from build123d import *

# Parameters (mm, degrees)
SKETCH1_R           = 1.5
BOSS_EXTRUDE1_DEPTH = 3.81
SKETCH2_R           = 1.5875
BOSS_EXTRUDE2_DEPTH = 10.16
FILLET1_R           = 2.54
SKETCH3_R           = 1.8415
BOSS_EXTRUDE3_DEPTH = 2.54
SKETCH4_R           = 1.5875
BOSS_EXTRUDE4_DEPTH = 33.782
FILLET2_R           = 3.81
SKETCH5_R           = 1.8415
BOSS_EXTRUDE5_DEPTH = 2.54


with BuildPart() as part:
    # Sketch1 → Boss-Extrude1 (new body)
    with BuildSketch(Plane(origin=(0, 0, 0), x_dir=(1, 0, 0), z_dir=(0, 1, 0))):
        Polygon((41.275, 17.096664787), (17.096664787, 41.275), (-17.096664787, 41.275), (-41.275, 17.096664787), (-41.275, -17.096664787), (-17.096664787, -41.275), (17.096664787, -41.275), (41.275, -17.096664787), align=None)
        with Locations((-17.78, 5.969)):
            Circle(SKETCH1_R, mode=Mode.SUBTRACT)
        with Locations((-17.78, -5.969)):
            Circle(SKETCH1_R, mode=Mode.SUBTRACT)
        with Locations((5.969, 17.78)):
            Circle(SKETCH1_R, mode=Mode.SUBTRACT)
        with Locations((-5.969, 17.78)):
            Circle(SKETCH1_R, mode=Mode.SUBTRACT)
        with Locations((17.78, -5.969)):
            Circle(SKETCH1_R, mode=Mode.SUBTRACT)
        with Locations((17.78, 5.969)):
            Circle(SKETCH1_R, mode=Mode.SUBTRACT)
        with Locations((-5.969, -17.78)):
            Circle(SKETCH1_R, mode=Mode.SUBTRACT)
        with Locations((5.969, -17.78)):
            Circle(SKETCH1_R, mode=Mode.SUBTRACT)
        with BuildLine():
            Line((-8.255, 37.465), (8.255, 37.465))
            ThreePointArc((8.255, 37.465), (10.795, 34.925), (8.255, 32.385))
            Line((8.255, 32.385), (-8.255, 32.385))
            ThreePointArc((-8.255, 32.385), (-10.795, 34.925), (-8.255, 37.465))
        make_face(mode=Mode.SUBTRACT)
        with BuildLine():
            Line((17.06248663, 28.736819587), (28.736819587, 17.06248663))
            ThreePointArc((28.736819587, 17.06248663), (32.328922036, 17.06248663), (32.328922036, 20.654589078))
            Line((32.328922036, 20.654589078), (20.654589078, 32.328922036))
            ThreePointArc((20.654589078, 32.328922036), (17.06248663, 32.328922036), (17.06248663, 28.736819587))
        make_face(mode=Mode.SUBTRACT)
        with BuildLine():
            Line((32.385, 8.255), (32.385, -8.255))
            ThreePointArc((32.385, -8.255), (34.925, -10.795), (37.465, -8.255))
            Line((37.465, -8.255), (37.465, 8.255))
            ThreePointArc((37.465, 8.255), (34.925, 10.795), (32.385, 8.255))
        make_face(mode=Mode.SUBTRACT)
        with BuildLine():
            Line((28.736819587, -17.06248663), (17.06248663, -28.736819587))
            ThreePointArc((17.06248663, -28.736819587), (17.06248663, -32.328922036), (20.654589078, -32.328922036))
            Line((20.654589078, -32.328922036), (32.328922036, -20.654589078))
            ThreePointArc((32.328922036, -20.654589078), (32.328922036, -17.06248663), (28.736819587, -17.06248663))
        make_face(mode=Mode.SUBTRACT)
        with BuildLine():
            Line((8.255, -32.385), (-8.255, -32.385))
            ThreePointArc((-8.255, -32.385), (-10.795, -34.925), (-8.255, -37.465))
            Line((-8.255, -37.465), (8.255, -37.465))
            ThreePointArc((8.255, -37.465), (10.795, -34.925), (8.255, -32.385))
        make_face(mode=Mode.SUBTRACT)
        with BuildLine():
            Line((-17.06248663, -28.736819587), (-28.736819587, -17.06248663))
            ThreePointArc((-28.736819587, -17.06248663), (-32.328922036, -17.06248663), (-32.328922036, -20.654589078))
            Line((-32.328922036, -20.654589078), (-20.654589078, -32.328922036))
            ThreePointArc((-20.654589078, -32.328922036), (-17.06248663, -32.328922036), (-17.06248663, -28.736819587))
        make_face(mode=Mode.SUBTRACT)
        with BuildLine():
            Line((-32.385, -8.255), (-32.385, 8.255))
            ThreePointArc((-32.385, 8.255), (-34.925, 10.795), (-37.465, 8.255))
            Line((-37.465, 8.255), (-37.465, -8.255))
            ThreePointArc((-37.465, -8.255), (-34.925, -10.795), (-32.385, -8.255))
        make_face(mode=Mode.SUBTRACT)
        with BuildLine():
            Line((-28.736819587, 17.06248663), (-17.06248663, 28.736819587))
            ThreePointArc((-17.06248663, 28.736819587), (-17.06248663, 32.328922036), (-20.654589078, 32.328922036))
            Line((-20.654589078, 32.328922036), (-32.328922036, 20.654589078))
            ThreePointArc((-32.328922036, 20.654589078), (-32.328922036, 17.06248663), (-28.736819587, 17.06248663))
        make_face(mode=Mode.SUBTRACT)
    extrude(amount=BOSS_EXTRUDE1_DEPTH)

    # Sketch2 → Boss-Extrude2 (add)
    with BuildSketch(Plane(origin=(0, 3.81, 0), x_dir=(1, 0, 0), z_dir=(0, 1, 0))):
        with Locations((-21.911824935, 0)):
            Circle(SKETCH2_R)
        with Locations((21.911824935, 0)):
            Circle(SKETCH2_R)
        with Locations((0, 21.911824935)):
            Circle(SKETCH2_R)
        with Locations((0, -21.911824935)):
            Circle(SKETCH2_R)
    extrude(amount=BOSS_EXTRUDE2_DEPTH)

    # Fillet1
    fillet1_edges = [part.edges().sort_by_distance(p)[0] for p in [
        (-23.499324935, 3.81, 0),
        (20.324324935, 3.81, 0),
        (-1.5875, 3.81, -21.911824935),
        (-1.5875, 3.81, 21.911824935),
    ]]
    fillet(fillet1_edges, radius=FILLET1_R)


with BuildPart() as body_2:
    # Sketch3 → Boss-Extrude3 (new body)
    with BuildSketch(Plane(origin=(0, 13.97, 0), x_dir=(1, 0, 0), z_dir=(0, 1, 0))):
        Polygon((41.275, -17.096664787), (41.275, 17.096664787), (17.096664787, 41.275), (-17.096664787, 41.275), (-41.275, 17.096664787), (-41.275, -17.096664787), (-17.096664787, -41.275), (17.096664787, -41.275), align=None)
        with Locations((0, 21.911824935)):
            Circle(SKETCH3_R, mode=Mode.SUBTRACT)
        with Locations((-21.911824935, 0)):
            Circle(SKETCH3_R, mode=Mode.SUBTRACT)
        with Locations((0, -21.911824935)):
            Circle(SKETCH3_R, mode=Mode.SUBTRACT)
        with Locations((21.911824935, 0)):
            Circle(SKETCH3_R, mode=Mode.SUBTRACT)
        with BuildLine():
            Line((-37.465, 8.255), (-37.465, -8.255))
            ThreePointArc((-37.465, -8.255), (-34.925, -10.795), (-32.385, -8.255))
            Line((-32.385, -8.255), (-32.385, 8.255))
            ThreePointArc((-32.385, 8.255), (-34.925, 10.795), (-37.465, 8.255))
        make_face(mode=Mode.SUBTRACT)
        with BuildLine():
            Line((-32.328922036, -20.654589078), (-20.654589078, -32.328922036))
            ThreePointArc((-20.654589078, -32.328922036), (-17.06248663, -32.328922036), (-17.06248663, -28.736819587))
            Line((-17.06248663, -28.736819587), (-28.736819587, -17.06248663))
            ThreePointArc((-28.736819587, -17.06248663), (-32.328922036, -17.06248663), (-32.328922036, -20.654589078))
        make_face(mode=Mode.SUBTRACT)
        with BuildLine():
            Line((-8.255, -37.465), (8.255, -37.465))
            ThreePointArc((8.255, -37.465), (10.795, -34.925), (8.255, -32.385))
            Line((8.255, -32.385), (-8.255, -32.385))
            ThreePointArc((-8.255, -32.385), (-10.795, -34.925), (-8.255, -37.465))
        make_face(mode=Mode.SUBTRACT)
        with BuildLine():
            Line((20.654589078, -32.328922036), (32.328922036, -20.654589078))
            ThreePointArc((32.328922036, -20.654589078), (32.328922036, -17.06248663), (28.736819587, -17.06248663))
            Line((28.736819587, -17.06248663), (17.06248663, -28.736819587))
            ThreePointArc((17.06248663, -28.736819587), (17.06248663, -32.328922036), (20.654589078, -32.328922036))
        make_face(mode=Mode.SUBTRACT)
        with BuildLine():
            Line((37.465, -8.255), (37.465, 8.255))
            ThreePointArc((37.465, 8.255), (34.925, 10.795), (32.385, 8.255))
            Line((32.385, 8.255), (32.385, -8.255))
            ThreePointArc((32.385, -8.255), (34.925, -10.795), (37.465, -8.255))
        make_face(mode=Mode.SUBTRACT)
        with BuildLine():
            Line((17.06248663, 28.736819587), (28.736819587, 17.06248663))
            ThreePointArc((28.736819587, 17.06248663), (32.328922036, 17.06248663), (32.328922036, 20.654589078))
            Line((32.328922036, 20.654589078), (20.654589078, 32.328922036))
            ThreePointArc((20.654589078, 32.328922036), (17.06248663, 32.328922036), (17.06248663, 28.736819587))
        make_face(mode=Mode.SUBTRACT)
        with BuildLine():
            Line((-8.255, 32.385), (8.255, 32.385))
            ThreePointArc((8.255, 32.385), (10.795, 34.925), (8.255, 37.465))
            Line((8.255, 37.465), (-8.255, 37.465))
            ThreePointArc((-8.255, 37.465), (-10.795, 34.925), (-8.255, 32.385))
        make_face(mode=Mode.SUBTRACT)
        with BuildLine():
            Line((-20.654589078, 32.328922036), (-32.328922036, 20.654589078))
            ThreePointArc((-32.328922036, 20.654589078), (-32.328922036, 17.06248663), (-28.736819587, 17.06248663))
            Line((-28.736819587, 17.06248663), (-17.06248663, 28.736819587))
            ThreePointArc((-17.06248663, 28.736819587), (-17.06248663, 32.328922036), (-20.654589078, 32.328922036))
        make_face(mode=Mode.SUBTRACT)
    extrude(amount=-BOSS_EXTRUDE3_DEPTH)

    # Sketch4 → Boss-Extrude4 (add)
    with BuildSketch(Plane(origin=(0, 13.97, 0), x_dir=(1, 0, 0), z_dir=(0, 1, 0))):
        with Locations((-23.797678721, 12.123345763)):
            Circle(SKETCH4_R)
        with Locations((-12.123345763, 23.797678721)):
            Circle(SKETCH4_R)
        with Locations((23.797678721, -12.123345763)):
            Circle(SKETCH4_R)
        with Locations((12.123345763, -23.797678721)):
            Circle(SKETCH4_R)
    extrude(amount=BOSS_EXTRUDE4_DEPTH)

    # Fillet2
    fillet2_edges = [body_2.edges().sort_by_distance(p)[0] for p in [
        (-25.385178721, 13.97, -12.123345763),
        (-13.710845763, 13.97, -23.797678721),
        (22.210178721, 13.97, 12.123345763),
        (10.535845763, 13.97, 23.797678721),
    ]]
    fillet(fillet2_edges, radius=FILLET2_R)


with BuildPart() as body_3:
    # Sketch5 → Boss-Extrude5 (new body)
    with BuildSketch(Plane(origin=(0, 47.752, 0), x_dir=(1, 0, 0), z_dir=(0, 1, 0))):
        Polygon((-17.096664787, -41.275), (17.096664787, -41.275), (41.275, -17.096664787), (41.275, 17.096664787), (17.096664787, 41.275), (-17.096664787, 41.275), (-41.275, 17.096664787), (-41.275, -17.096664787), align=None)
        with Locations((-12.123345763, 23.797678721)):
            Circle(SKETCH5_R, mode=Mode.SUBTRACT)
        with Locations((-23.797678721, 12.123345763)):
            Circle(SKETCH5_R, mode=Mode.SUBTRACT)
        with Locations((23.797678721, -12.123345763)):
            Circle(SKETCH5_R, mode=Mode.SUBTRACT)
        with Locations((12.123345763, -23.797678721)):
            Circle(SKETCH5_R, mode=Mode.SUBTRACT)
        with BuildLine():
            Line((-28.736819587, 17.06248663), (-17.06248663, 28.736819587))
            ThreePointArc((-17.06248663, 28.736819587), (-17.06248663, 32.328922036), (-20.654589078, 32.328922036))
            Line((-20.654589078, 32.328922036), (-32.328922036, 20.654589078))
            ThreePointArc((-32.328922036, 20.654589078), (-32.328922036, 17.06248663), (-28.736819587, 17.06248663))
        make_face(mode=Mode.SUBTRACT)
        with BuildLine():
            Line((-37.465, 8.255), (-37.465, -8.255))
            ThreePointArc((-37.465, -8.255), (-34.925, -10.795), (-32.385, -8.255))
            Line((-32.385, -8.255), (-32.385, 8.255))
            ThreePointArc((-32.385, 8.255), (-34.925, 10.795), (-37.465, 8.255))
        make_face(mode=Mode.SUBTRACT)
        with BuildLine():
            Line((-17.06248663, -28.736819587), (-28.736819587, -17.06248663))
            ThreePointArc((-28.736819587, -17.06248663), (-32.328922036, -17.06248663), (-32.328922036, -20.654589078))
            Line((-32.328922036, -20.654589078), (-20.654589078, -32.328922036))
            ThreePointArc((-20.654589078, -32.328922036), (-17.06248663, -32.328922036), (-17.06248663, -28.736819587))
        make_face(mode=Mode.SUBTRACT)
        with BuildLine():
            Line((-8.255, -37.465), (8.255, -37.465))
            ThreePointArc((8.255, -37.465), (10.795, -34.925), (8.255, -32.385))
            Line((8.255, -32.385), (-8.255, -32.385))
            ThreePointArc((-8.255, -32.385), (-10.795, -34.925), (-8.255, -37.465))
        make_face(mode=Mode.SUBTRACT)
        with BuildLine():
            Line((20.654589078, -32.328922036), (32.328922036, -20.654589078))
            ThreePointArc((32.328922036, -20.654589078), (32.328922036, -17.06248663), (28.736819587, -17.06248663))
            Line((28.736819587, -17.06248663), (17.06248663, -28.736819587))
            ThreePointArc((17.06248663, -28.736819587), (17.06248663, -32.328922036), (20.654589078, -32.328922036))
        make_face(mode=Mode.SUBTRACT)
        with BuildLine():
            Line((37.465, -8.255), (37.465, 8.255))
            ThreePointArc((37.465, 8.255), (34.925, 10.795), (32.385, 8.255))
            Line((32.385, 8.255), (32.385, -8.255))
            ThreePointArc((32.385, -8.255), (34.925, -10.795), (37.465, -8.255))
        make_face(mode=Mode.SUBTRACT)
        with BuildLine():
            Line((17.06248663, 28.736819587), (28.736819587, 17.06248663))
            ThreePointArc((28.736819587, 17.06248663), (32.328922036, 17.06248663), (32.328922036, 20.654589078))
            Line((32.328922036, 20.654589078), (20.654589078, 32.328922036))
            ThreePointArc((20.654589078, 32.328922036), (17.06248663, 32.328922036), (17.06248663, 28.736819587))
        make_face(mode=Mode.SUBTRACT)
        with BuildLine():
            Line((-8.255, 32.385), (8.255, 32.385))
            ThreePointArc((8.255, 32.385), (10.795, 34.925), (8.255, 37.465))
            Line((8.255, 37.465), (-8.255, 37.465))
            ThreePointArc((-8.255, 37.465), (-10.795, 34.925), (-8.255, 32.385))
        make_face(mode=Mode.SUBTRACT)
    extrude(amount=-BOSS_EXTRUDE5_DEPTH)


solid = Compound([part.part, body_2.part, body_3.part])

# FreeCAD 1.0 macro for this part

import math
import FreeCAD as App
import Part
import Sketcher
Q = App.Units.Quantity


def edges_at(feature, points):
    """Names of the edges that pass closest to the given points."""
    edges = feature.Shape.Edges
    near = lambda p: min(range(len(edges)), key=lambda i: edges[i].distToShape(Part.Vertex(*p))[0])
    return sorted({f"Edge{near(p) + 1}" for p in points})

doc = App.newDocument("Part")
body = doc.addObject("PartDesign::Body", "Body")

# Sketch on XZ plane
sketch1 = body.newObject("Sketcher::SketchObject", "Sketch")
sketch1.AttachmentSupport = (doc.getObject("XZ_Plane"), [""])
sketch1.MapMode = "FlatFace"
sketch1.addGeometry([
    Part.LineSegment(App.Vector(41.275, -17.096665, 0), App.Vector(17.096665, -41.275, 0)),  # 0
    Part.LineSegment(App.Vector(17.096665, -41.275, 0), App.Vector(-17.096665, -41.275, 0)),  # 1
    Part.LineSegment(App.Vector(-17.096665, -41.275, 0), App.Vector(-41.275, -17.096665, 0)),  # 2
    Part.LineSegment(App.Vector(-41.275, -17.096665, 0), App.Vector(-41.275, 17.096665, 0)),  # 3
    Part.LineSegment(App.Vector(-41.275, 17.096665, 0), App.Vector(-17.096665, 41.275, 0)),  # 4
    Part.LineSegment(App.Vector(-17.096665, 41.275, 0), App.Vector(17.096665, 41.275, 0)),  # 5
    Part.LineSegment(App.Vector(17.096665, 41.275, 0), App.Vector(41.275, 17.096665, 0)),  # 6
    Part.LineSegment(App.Vector(41.275, 17.096665, 0), App.Vector(41.275, -17.096665, 0)),  # 7
    Part.LineSegment(App.Vector(-28.73682, 17.062487, 0), App.Vector(-17.062487, 28.73682, 0)),  # 8
    Part.ArcOfCircle(Part.Circle(App.Vector(-18.858538, 30.532871, 0), App.Vector(0, 0, 1), 2.54), math.radians(-45), math.radians(135)),  # 9
    Part.LineSegment(App.Vector(-20.654589, 32.328922, 0), App.Vector(-32.328922, 20.654589, 0)),  # 10
    Part.ArcOfCircle(Part.Circle(App.Vector(-30.532871, 18.858538, 0), App.Vector(0, 0, 1), 2.54), math.radians(135), math.radians(315)),  # 11
    Part.Circle(App.Vector(-5.969, 17.78, 0), App.Vector(0, 0, 1), 1.5),  # 12
    Part.Circle(App.Vector(-17.78, 5.969, 0), App.Vector(0, 0, 1), 1.5),  # 13
    Part.LineSegment(App.Vector(-8.255, 32.385, 0), App.Vector(8.255, 32.385, 0)),  # 14
    Part.ArcOfCircle(Part.Circle(App.Vector(8.255, 34.925, 0), App.Vector(0, 0, 1), 2.54), math.radians(-90), math.radians(90)),  # 15
    Part.LineSegment(App.Vector(8.255, 37.465, 0), App.Vector(-8.255, 37.465, 0)),  # 16
    Part.ArcOfCircle(Part.Circle(App.Vector(-8.255, 34.925, 0), App.Vector(0, 0, 1), 2.54), math.radians(90), math.radians(270)),  # 17
    Part.LineSegment(App.Vector(17.062487, 28.73682, 0), App.Vector(28.73682, 17.062487, 0)),  # 18
    Part.ArcOfCircle(Part.Circle(App.Vector(30.532871, 18.858538, 0), App.Vector(0, 0, 1), 2.54), math.radians(-135), math.radians(45)),  # 19
    Part.LineSegment(App.Vector(32.328922, 20.654589, 0), App.Vector(20.654589, 32.328922, 0)),  # 20
    Part.ArcOfCircle(Part.Circle(App.Vector(18.858538, 30.532871, 0), App.Vector(0, 0, 1), 2.54), math.radians(45), math.radians(225)),  # 21
    Part.Circle(App.Vector(5.969, 17.78, 0), App.Vector(0, 0, 1), 1.5),  # 22
    Part.Circle(App.Vector(17.78, 5.969, 0), App.Vector(0, 0, 1), 1.5),  # 23
    Part.LineSegment(App.Vector(-32.385, -8.255, 0), App.Vector(-32.385, 8.255, 0)),  # 24
    Part.ArcOfCircle(Part.Circle(App.Vector(-34.925, 8.255, 0), App.Vector(0, 0, 1), 2.54), math.radians(0), math.radians(180)),  # 25
    Part.LineSegment(App.Vector(-37.465, 8.255, 0), App.Vector(-37.465, -8.255, 0)),  # 26
    Part.ArcOfCircle(Part.Circle(App.Vector(-34.925, -8.255, 0), App.Vector(0, 0, 1), 2.54), math.radians(180), math.radians(360)),  # 27
    Part.Circle(App.Vector(-17.78, -5.969, 0), App.Vector(0, 0, 1), 1.5),  # 28
    Part.Circle(App.Vector(-5.969, -17.78, 0), App.Vector(0, 0, 1), 1.5),  # 29
    Part.LineSegment(App.Vector(-17.062487, -28.73682, 0), App.Vector(-28.73682, -17.062487, 0)),  # 30
    Part.ArcOfCircle(Part.Circle(App.Vector(-30.532871, -18.858538, 0), App.Vector(0, 0, 1), 2.54), math.radians(45), math.radians(225)),  # 31
    Part.LineSegment(App.Vector(-32.328922, -20.654589, 0), App.Vector(-20.654589, -32.328922, 0)),  # 32
    Part.ArcOfCircle(Part.Circle(App.Vector(-18.858538, -30.532871, 0), App.Vector(0, 0, 1), 2.54), math.radians(-135), math.radians(45)),  # 33
    Part.Circle(App.Vector(17.78, -5.969, 0), App.Vector(0, 0, 1), 1.5),  # 34
    Part.Circle(App.Vector(5.969, -17.78, 0), App.Vector(0, 0, 1), 1.5),  # 35
    Part.LineSegment(App.Vector(32.385, 8.255, 0), App.Vector(32.385, -8.255, 0)),  # 36
    Part.ArcOfCircle(Part.Circle(App.Vector(34.925, -8.255, 0), App.Vector(0, 0, 1), 2.54), math.radians(180), math.radians(360)),  # 37
    Part.LineSegment(App.Vector(37.465, -8.255, 0), App.Vector(37.465, 8.255, 0)),  # 38
    Part.ArcOfCircle(Part.Circle(App.Vector(34.925, 8.255, 0), App.Vector(0, 0, 1), 2.54), math.radians(0), math.radians(180)),  # 39
    Part.ArcOfCircle(Part.Circle(App.Vector(-8.255, -34.925, 0), App.Vector(0, 0, 1), 2.54), math.radians(90), math.radians(270)),  # 40
    Part.LineSegment(App.Vector(-8.255, -37.465, 0), App.Vector(8.255, -37.465, 0)),  # 41
    Part.ArcOfCircle(Part.Circle(App.Vector(8.255, -34.925, 0), App.Vector(0, 0, 1), 2.54), math.radians(-90), math.radians(90)),  # 42
    Part.LineSegment(App.Vector(8.255, -32.385, 0), App.Vector(-8.255, -32.385, 0)),  # 43
    Part.LineSegment(App.Vector(28.73682, -17.062487, 0), App.Vector(17.062487, -28.73682, 0)),  # 44
    Part.ArcOfCircle(Part.Circle(App.Vector(18.858538, -30.532871, 0), App.Vector(0, 0, 1), 2.54), math.radians(135), math.radians(315)),  # 45
    Part.LineSegment(App.Vector(20.654589, -32.328922, 0), App.Vector(32.328922, -20.654589, 0)),  # 46
    Part.ArcOfCircle(Part.Circle(App.Vector(30.532871, -18.858538, 0), App.Vector(0, 0, 1), 2.54), math.radians(-45), math.radians(135)),  # 47
], False)
sketch1.addConstraint([
    Sketcher.Constraint("Coincident", 0, 2, 1, 1),
    Sketcher.Constraint("Coincident", 1, 2, 2, 1),
    Sketcher.Constraint("Coincident", 2, 2, 3, 1),
    Sketcher.Constraint("Coincident", 3, 2, 4, 1),
    Sketcher.Constraint("Coincident", 4, 2, 5, 1),
    Sketcher.Constraint("Coincident", 5, 2, 6, 1),
    Sketcher.Constraint("Coincident", 6, 2, 7, 1),
    Sketcher.Constraint("Coincident", 7, 2, 0, 1),
    Sketcher.Constraint("Tangent", 8, 2, 9, 1),
    Sketcher.Constraint("Tangent", 9, 2, 10, 1),
    Sketcher.Constraint("Tangent", 10, 2, 11, 1),
    Sketcher.Constraint("Tangent", 11, 2, 8, 1),
    Sketcher.Constraint("Tangent", 14, 2, 15, 1),
    Sketcher.Constraint("Tangent", 15, 2, 16, 1),
    Sketcher.Constraint("Tangent", 16, 2, 17, 1),
    Sketcher.Constraint("Tangent", 17, 2, 14, 1),
    Sketcher.Constraint("Tangent", 18, 2, 19, 1),
    Sketcher.Constraint("Tangent", 19, 2, 20, 1),
    Sketcher.Constraint("Tangent", 20, 2, 21, 1),
    Sketcher.Constraint("Tangent", 21, 2, 18, 1),
    Sketcher.Constraint("Tangent", 24, 2, 25, 1),
    Sketcher.Constraint("Tangent", 25, 2, 26, 1),
    Sketcher.Constraint("Tangent", 26, 2, 27, 1),
    Sketcher.Constraint("Tangent", 27, 2, 24, 1),
    Sketcher.Constraint("Tangent", 30, 2, 31, 1),
    Sketcher.Constraint("Tangent", 31, 2, 32, 1),
    Sketcher.Constraint("Tangent", 32, 2, 33, 1),
    Sketcher.Constraint("Tangent", 33, 2, 30, 1),
    Sketcher.Constraint("Tangent", 36, 2, 37, 1),
    Sketcher.Constraint("Tangent", 37, 2, 38, 1),
    Sketcher.Constraint("Tangent", 38, 2, 39, 1),
    Sketcher.Constraint("Tangent", 39, 2, 36, 1),
    Sketcher.Constraint("Tangent", 40, 2, 41, 1),
    Sketcher.Constraint("Tangent", 41, 2, 42, 1),
    Sketcher.Constraint("Tangent", 42, 2, 43, 1),
    Sketcher.Constraint("Tangent", 43, 2, 40, 1),
    Sketcher.Constraint("Tangent", 44, 2, 45, 1),
    Sketcher.Constraint("Tangent", 45, 2, 46, 1),
    Sketcher.Constraint("Tangent", 46, 2, 47, 1),
    Sketcher.Constraint("Tangent", 47, 2, 44, 1),
    Sketcher.Constraint("Horizontal", 1),
    Sketcher.Constraint("Vertical", 3),
    Sketcher.Constraint("Horizontal", 5),
    Sketcher.Constraint("Vertical", 7),
    Sketcher.Constraint("Horizontal", 14),
    Sketcher.Constraint("Horizontal", 16),
    Sketcher.Constraint("Vertical", 24),
    Sketcher.Constraint("Vertical", 26),
    Sketcher.Constraint("Vertical", 36),
    Sketcher.Constraint("Vertical", 38),
    Sketcher.Constraint("Horizontal", 41),
    Sketcher.Constraint("Horizontal", 43),
    Sketcher.Constraint("Equal", 9, 11),
    Sketcher.Constraint("Equal", 12, 13),
    Sketcher.Constraint("Equal", 11, 15),
    Sketcher.Constraint("Equal", 17, 19),
    Sketcher.Constraint("Equal", 19, 21),
    Sketcher.Constraint("Equal", 13, 22),
    Sketcher.Constraint("Equal", 22, 23),
    Sketcher.Constraint("Equal", 21, 25),
    Sketcher.Constraint("Equal", 23, 28),
    Sketcher.Constraint("Equal", 28, 29),
    Sketcher.Constraint("Equal", 27, 31),
    Sketcher.Constraint("Equal", 31, 33),
    Sketcher.Constraint("Equal", 29, 34),
    Sketcher.Constraint("Equal", 34, 35),
    Sketcher.Constraint("Equal", 33, 37),
    Sketcher.Constraint("Equal", 39, 40),
    Sketcher.Constraint("Equal", 42, 45),
    Sketcher.Constraint("Equal", 45, 47),
    Sketcher.Constraint("Symmetric", 23, 3, 28, 3, -1, 1),
    Sketcher.Constraint("Symmetric", 22, 3, 29, 3, -1, 1),
    Sketcher.Constraint("Symmetric", 19, 3, 31, 3, -1, 1),
    Sketcher.Constraint("Symmetric", 21, 3, 33, 3, -1, 1),
    Sketcher.Constraint("Symmetric", 13, 3, 34, 3, -1, 1),
    Sketcher.Constraint("Symmetric", 12, 3, 35, 3, -1, 1),
    Sketcher.Constraint("Symmetric", 25, 3, 37, 3, -1, 1),
    Sketcher.Constraint("Symmetric", 15, 3, 40, 3, -1, 1),
    Sketcher.Constraint("Symmetric", 9, 3, 45, 3, -1, 1),
    Sketcher.Constraint("Symmetric", 11, 3, 47, 3, -1, 1),
    Sketcher.Constraint("Symmetric", 0, 2, 4, 2, -1, 1),
    Sketcher.Constraint("Symmetric", 2, 2, 6, 2, -1, 1),
    Sketcher.Constraint("Symmetric", 11, 3, 19, 3, -2),
    Sketcher.Constraint("Symmetric", 9, 3, 21, 3, -2),
    Sketcher.Constraint("Symmetric", 12, 3, 22, 3, -2),
    Sketcher.Constraint("Symmetric", 13, 3, 23, 3, -2),
    Sketcher.Constraint("Perpendicular", 0, 2),
    Sketcher.Constraint("Perpendicular", 2, 4),
    Sketcher.Constraint("Perpendicular", 4, 6),
    Sketcher.Constraint("Perpendicular", 6, 8),
    Sketcher.Constraint("Perpendicular", 10, 18),
    Sketcher.Constraint("Horizontal", 27, 3, 37, 3),
    Sketcher.Constraint("Horizontal", 25, 3, 39, 3),
    Sketcher.Constraint("Horizontal", 3, 2, 6, 2),
    Sketcher.Constraint("Vertical", 17, 3, 40, 3),
    Sketcher.Constraint("Vertical", 15, 3, 42, 3),
    Sketcher.Constraint("Equal", 5, 3),
    Sketcher.Constraint("Equal", 43, 24),
    Sketcher.Constraint("Radius", 9, Q("0.1 in")),
    Sketcher.Constraint("DistanceX", 14, 1, 14, 2, Q("0.65 in")),
    Sketcher.Constraint("DistanceY", -1, 1, 12, 3, Q("0.7 in")),
    Sketcher.Constraint("DistanceX", 13, 3, -1, 1, Q("0.7 in")),
    Sketcher.Constraint("Distance", 8, Q("0.65 in")),
    Sketcher.Constraint("Diameter", 12, Q("3 mm")),
    Sketcher.Constraint("DistanceX", 12, 3, -1, 1, Q("0.235 in")),
    Sketcher.Constraint("DistanceY", -1, 1, 13, 3, Q("0.235 in")),
    Sketcher.Constraint("DistanceY", -1, 1, 15, 3, Q("1.375 in")),
    Sketcher.Constraint("DistanceX", 25, 3, -1, 1, Q("1.375 in")),
    Sketcher.Constraint("DistanceY", 0, 2, -1, 1, Q("1.625 in")),
    Sketcher.Constraint("DistanceX", 1, 2, 1, 1, Q("34.19333 mm")),
    Sketcher.Constraint("DistanceY", -1, 1, 9, 3, Q("30.532871 mm")),
    Sketcher.Constraint("DistanceX", 11, 3, -1, 1, Q("30.532871 mm")),
])
pad1 = body.newObject("PartDesign::Pad", "Pad")
pad1.Profile = sketch1
pad1.Length = Q("0.15 in")
pad1.Reversed = True

# Sketch on XZ plane
sketch2 = body.newObject("Sketcher::SketchObject", "Sketch001")
sketch2.AttachmentSupport = (doc.getObject("XZ_Plane"), [""])
sketch2.MapMode = "FlatFace"
sketch2.AttachmentOffset = App.Placement(App.Vector(0, 0, -0.15 * 25.4), App.Rotation())
sketch2.addGeometry([
    Part.Circle(App.Vector(-21.911825, 0, 0), App.Vector(0, 0, 1), 1.5875),
    Part.Circle(App.Vector(21.911825, 0, 0), App.Vector(0, 0, 1), 1.5875),
    Part.Circle(App.Vector(0, -21.911825, 0), App.Vector(0, 0, 1), 1.5875),
    Part.Circle(App.Vector(0, 21.911825, 0), App.Vector(0, 0, 1), 1.5875),
], False)
sketch2.addConstraint([
    Sketcher.Constraint("Equal", 0, 1),
    Sketcher.Constraint("Equal", 1, 2),
    Sketcher.Constraint("Equal", 2, 3),
    Sketcher.Constraint("Symmetric", 0, 3, 1, 3, -1, 1),
    Sketcher.Constraint("Symmetric", 2, 3, 3, 3, -1, 1),
    Sketcher.Constraint("PointOnObject", 0, 3, -1),
    Sketcher.Constraint("PointOnObject", 2, 3, -2),
    Sketcher.Constraint("Diameter", 0, Q("0.125 in")),
    Sketcher.Constraint("DistanceX", 0, 3, 1, 3, Q("43.82365 mm")),
    Sketcher.Constraint("DistanceY", 2, 3, 3, 3, Q("43.82365 mm")),
])
pad2 = body.newObject("PartDesign::Pad", "Pad001")
pad2.Profile = sketch2
pad2.Length = Q("0.4 in")
pad2.Reversed = True
doc.recompute()

fillet = body.newObject("PartDesign::Fillet", "Fillet")
fillet.Base = (pad2, edges_at(pad2, [
    (-23.499, 3.81, 0),
    (20.324, 3.81, 0),
    (-1.587, 3.81, -21.912),
    (-1.587, 3.81, 21.912),
]))
fillet.Radius = Q("0.1 in")
body2 = doc.addObject("PartDesign::Body", "Body001")

# Sketch on XZ plane
sketch3 = body2.newObject("Sketcher::SketchObject", "Sketch002")
sketch3.AttachmentSupport = (doc.getObject("XZ_Plane001"), [""])
sketch3.MapMode = "FlatFace"
sketch3.AttachmentOffset = App.Placement(App.Vector(0, 0, -0.55 * 25.4), App.Rotation())
sketch3.addGeometry([
    Part.LineSegment(App.Vector(41.275, 17.096665, 0), App.Vector(41.275, -17.096665, 0)),  # 0
    Part.LineSegment(App.Vector(41.275, -17.096665, 0), App.Vector(17.096665, -41.275, 0)),  # 1
    Part.LineSegment(App.Vector(17.096665, -41.275, 0), App.Vector(-17.096665, -41.275, 0)),  # 2
    Part.LineSegment(App.Vector(-17.096665, -41.275, 0), App.Vector(-41.275, -17.096665, 0)),  # 3
    Part.LineSegment(App.Vector(-41.275, -17.096665, 0), App.Vector(-41.275, 17.096665, 0)),  # 4
    Part.LineSegment(App.Vector(-41.275, 17.096665, 0), App.Vector(-17.096665, 41.275, 0)),  # 5
    Part.LineSegment(App.Vector(-17.096665, 41.275, 0), App.Vector(17.096665, 41.275, 0)),  # 6
    Part.LineSegment(App.Vector(17.096665, 41.275, 0), App.Vector(41.275, 17.096665, 0)),  # 7
    Part.LineSegment(App.Vector(-20.654589, 32.328922, 0), App.Vector(-32.328922, 20.654589, 0)),  # 8
    Part.ArcOfCircle(Part.Circle(App.Vector(-30.532871, 18.858538, 0), App.Vector(0, 0, 1), 2.54), math.radians(135), math.radians(315)),  # 9
    Part.LineSegment(App.Vector(-28.73682, 17.062487, 0), App.Vector(-17.062487, 28.73682, 0)),  # 10
    Part.ArcOfCircle(Part.Circle(App.Vector(-18.858538, 30.532871, 0), App.Vector(0, 0, 1), 2.54), math.radians(-45), math.radians(135)),  # 11
    Part.LineSegment(App.Vector(8.255, 37.465, 0), App.Vector(-8.255, 37.465, 0)),  # 12
    Part.ArcOfCircle(Part.Circle(App.Vector(-8.255, 34.925, 0), App.Vector(0, 0, 1), 2.54), math.radians(90), math.radians(270)),  # 13
    Part.LineSegment(App.Vector(-8.255, 32.385, 0), App.Vector(8.255, 32.385, 0)),  # 14
    Part.ArcOfCircle(Part.Circle(App.Vector(8.255, 34.925, 0), App.Vector(0, 0, 1), 2.54), math.radians(-90), math.radians(90)),  # 15
    Part.Circle(App.Vector(0, 21.911825, 0), App.Vector(0, 0, 1), 1.8415),  # 16
    Part.LineSegment(App.Vector(32.328922, 20.654589, 0), App.Vector(20.654589, 32.328922, 0)),  # 17
    Part.ArcOfCircle(Part.Circle(App.Vector(18.858538, 30.532871, 0), App.Vector(0, 0, 1), 2.54), math.radians(45), math.radians(225)),  # 18
    Part.LineSegment(App.Vector(17.062487, 28.73682, 0), App.Vector(28.73682, 17.062487, 0)),  # 19
    Part.ArcOfCircle(Part.Circle(App.Vector(30.532871, 18.858538, 0), App.Vector(0, 0, 1), 2.54), math.radians(-135), math.radians(45)),  # 20
    Part.LineSegment(App.Vector(-37.465, 8.255, 0), App.Vector(-37.465, -8.255, 0)),  # 21
    Part.ArcOfCircle(Part.Circle(App.Vector(-34.925, -8.255, 0), App.Vector(0, 0, 1), 2.54), math.radians(180), math.radians(360)),  # 22
    Part.LineSegment(App.Vector(-32.385, -8.255, 0), App.Vector(-32.385, 8.255, 0)),  # 23
    Part.ArcOfCircle(Part.Circle(App.Vector(-34.925, 8.255, 0), App.Vector(0, 0, 1), 2.54), math.radians(0), math.radians(180)),  # 24
    Part.Circle(App.Vector(-21.911825, 0, 0), App.Vector(0, 0, 1), 1.8415),  # 25
    Part.LineSegment(App.Vector(-32.328922, -20.654589, 0), App.Vector(-20.654589, -32.328922, 0)),  # 26
    Part.ArcOfCircle(Part.Circle(App.Vector(-18.858538, -30.532871, 0), App.Vector(0, 0, 1), 2.54), math.radians(-135), math.radians(45)),  # 27
    Part.LineSegment(App.Vector(-17.062487, -28.73682, 0), App.Vector(-28.73682, -17.062487, 0)),  # 28
    Part.ArcOfCircle(Part.Circle(App.Vector(-30.532871, -18.858538, 0), App.Vector(0, 0, 1), 2.54), math.radians(45), math.radians(225)),  # 29
    Part.Circle(App.Vector(21.911825, 0, 0), App.Vector(0, 0, 1), 1.8415),  # 30
    Part.LineSegment(App.Vector(37.465, -8.255, 0), App.Vector(37.465, 8.255, 0)),  # 31
    Part.ArcOfCircle(Part.Circle(App.Vector(34.925, 8.255, 0), App.Vector(0, 0, 1), 2.54), math.radians(0), math.radians(180)),  # 32
    Part.LineSegment(App.Vector(32.385, 8.255, 0), App.Vector(32.385, -8.255, 0)),  # 33
    Part.ArcOfCircle(Part.Circle(App.Vector(34.925, -8.255, 0), App.Vector(0, 0, 1), 2.54), math.radians(180), math.radians(360)),  # 34
    Part.Circle(App.Vector(0, -21.911825, 0), App.Vector(0, 0, 1), 1.8415),  # 35
    Part.LineSegment(App.Vector(8.255, -32.385, 0), App.Vector(-8.255, -32.385, 0)),  # 36
    Part.ArcOfCircle(Part.Circle(App.Vector(-8.255, -34.925, 0), App.Vector(0, 0, 1), 2.54), math.radians(90), math.radians(270)),  # 37
    Part.LineSegment(App.Vector(-8.255, -37.465, 0), App.Vector(8.255, -37.465, 0)),  # 38
    Part.ArcOfCircle(Part.Circle(App.Vector(8.255, -34.925, 0), App.Vector(0, 0, 1), 2.54), math.radians(-90), math.radians(90)),  # 39
    Part.LineSegment(App.Vector(28.73682, -17.062487, 0), App.Vector(17.062487, -28.73682, 0)),  # 40
    Part.ArcOfCircle(Part.Circle(App.Vector(18.858538, -30.532871, 0), App.Vector(0, 0, 1), 2.54), math.radians(135), math.radians(315)),  # 41
    Part.LineSegment(App.Vector(20.654589, -32.328922, 0), App.Vector(32.328922, -20.654589, 0)),  # 42
    Part.ArcOfCircle(Part.Circle(App.Vector(30.532871, -18.858538, 0), App.Vector(0, 0, 1), 2.54), math.radians(-45), math.radians(135)),  # 43
], False)
sketch3.addConstraint([
    Sketcher.Constraint("Coincident", 0, 2, 1, 1),
    Sketcher.Constraint("Coincident", 1, 2, 2, 1),
    Sketcher.Constraint("Coincident", 2, 2, 3, 1),
    Sketcher.Constraint("Coincident", 3, 2, 4, 1),
    Sketcher.Constraint("Coincident", 4, 2, 5, 1),
    Sketcher.Constraint("Coincident", 5, 2, 6, 1),
    Sketcher.Constraint("Coincident", 6, 2, 7, 1),
    Sketcher.Constraint("Coincident", 7, 2, 0, 1),
    Sketcher.Constraint("Tangent", 8, 2, 9, 1),
    Sketcher.Constraint("Tangent", 9, 2, 10, 1),
    Sketcher.Constraint("Tangent", 10, 2, 11, 1),
    Sketcher.Constraint("Tangent", 11, 2, 8, 1),
    Sketcher.Constraint("Tangent", 12, 2, 13, 1),
    Sketcher.Constraint("Tangent", 13, 2, 14, 1),
    Sketcher.Constraint("Tangent", 14, 2, 15, 1),
    Sketcher.Constraint("Tangent", 15, 2, 12, 1),
    Sketcher.Constraint("Tangent", 17, 2, 18, 1),
    Sketcher.Constraint("Tangent", 18, 2, 19, 1),
    Sketcher.Constraint("Tangent", 19, 2, 20, 1),
    Sketcher.Constraint("Tangent", 20, 2, 17, 1),
    Sketcher.Constraint("Tangent", 21, 2, 22, 1),
    Sketcher.Constraint("Tangent", 22, 2, 23, 1),
    Sketcher.Constraint("Tangent", 23, 2, 24, 1),
    Sketcher.Constraint("Tangent", 24, 2, 21, 1),
    Sketcher.Constraint("Tangent", 26, 2, 27, 1),
    Sketcher.Constraint("Tangent", 27, 2, 28, 1),
    Sketcher.Constraint("Tangent", 28, 2, 29, 1),
    Sketcher.Constraint("Tangent", 29, 2, 26, 1),
    Sketcher.Constraint("Tangent", 31, 2, 32, 1),
    Sketcher.Constraint("Tangent", 32, 2, 33, 1),
    Sketcher.Constraint("Tangent", 33, 2, 34, 1),
    Sketcher.Constraint("Tangent", 34, 2, 31, 1),
    Sketcher.Constraint("Tangent", 36, 2, 37, 1),
    Sketcher.Constraint("Tangent", 37, 2, 38, 1),
    Sketcher.Constraint("Tangent", 38, 2, 39, 1),
    Sketcher.Constraint("Tangent", 39, 2, 36, 1),
    Sketcher.Constraint("Tangent", 40, 2, 41, 1),
    Sketcher.Constraint("Tangent", 41, 2, 42, 1),
    Sketcher.Constraint("Tangent", 42, 2, 43, 1),
    Sketcher.Constraint("Tangent", 43, 2, 40, 1),
    Sketcher.Constraint("Vertical", 0),
    Sketcher.Constraint("Horizontal", 2),
    Sketcher.Constraint("Vertical", 4),
    Sketcher.Constraint("Horizontal", 6),
    Sketcher.Constraint("Horizontal", 12),
    Sketcher.Constraint("Horizontal", 14),
    Sketcher.Constraint("Vertical", 21),
    Sketcher.Constraint("Vertical", 23),
    Sketcher.Constraint("Vertical", 31),
    Sketcher.Constraint("Vertical", 33),
    Sketcher.Constraint("Horizontal", 36),
    Sketcher.Constraint("Horizontal", 38),
    Sketcher.Constraint("Equal", 9, 11),
    Sketcher.Constraint("Equal", 11, 13),
    Sketcher.Constraint("Equal", 15, 18),
    Sketcher.Constraint("Equal", 18, 20),
    Sketcher.Constraint("Equal", 20, 22),
    Sketcher.Constraint("Equal", 16, 25),
    Sketcher.Constraint("Equal", 24, 27),
    Sketcher.Constraint("Equal", 27, 29),
    Sketcher.Constraint("Equal", 25, 30),
    Sketcher.Constraint("Equal", 29, 32),
    Sketcher.Constraint("Equal", 30, 35),
    Sketcher.Constraint("Equal", 34, 37),
    Sketcher.Constraint("Equal", 39, 41),
    Sketcher.Constraint("Equal", 41, 43),
    Sketcher.Constraint("Symmetric", 18, 3, 27, 3, -1, 1),
    Sketcher.Constraint("Symmetric", 20, 3, 29, 3, -1, 1),
    Sketcher.Constraint("Symmetric", 25, 3, 30, 3, -1, 1),
    Sketcher.Constraint("Symmetric", 22, 3, 32, 3, -1, 1),
    Sketcher.Constraint("Symmetric", 16, 3, 35, 3, -1, 1),
    Sketcher.Constraint("Symmetric", 15, 3, 37, 3, -1, 1),
    Sketcher.Constraint("Symmetric", 11, 3, 41, 3, -1, 1),
    Sketcher.Constraint("Symmetric", 9, 3, 43, 3, -1, 1),
    Sketcher.Constraint("Symmetric", 0, 2, 4, 2, -1, 1),
    Sketcher.Constraint("Symmetric", 1, 2, 5, 2, -1, 1),
    Sketcher.Constraint("Symmetric", 11, 3, 18, 3, -2),
    Sketcher.Constraint("Symmetric", 9, 3, 20, 3, -2),
    Sketcher.Constraint("PointOnObject", 16, 3, -2),
    Sketcher.Constraint("PointOnObject", 25, 3, -1),
    Sketcher.Constraint("Perpendicular", 1, 3),
    Sketcher.Constraint("Perpendicular", 5, 7),
    Sketcher.Constraint("Perpendicular", 7, 8),
    Sketcher.Constraint("Perpendicular", 10, 17),
    Sketcher.Constraint("Horizontal", 24, 3, 32, 3),
    Sketcher.Constraint("Horizontal", 22, 3, 34, 3),
    Sketcher.Constraint("Horizontal", 0, 2, 3, 2),
    Sketcher.Constraint("Horizontal", 4, 2, 7, 2),
    Sketcher.Constraint("Vertical", 13, 3, 37, 3),
    Sketcher.Constraint("Vertical", 15, 3, 39, 3),
    Sketcher.Constraint("Equal", 6, 0),
    Sketcher.Constraint("Equal", 38, 21),
    Sketcher.Constraint("Radius", 9, Q("0.1 in")),
    Sketcher.Constraint("Diameter", 16, Q("0.145 in")),
    Sketcher.Constraint("DistanceX", 12, 2, 12, 1, Q("0.65 in")),
    Sketcher.Constraint("DistanceY", 22, 3, 13, 3, Q("1.7 in")),
    Sketcher.Constraint("DistanceX", 22, 3, 15, 3, Q("1.7 in")),
    Sketcher.Constraint("Distance", 8, Q("0.65 in")),
    Sketcher.Constraint("DistanceX", 34, 3, 0, 2, Q("0.25 in")),
    Sketcher.Constraint("DistanceX", 2, 2, 2, 1, Q("34.19333 mm")),
    Sketcher.Constraint("DistanceX", 9, 3, -1, 1, Q("30.532871 mm")),
    Sketcher.Constraint("DistanceY", -1, 1, 11, 3, Q("30.532871 mm")),
    Sketcher.Constraint("DistanceX", 25, 3, 30, 3, Q("43.82365 mm")),
    Sketcher.Constraint("DistanceY", -1, 1, 16, 3, Q("21.911825 mm")),
])
pad3 = body2.newObject("PartDesign::Pad", "Pad002")
pad3.Profile = sketch3
pad3.Length = Q("0.1 in")

# Sketch on XZ plane
sketch4 = body2.newObject("Sketcher::SketchObject", "Sketch003")
sketch4.AttachmentSupport = (doc.getObject("XZ_Plane001"), [""])
sketch4.MapMode = "FlatFace"
sketch4.AttachmentOffset = App.Placement(App.Vector(0, 0, -0.55 * 25.4), App.Rotation())
sketch4.addGeometry([
    Part.Circle(App.Vector(-23.797679, -12.123346, 0), App.Vector(0, 0, 1), 1.5875),
    Part.Circle(App.Vector(-12.123346, -23.797679, 0), App.Vector(0, 0, 1), 1.5875),
    Part.Circle(App.Vector(23.797679, 12.123346, 0), App.Vector(0, 0, 1), 1.5875),
    Part.Circle(App.Vector(12.123346, 23.797679, 0), App.Vector(0, 0, 1), 1.5875),
], False)
sketch4.addConstraint([
    Sketcher.Constraint("Equal", 0, 1),
    Sketcher.Constraint("Equal", 1, 2),
    Sketcher.Constraint("Equal", 2, 3),
    Sketcher.Constraint("Symmetric", 0, 3, 2, 3, -1, 1),
    Sketcher.Constraint("Symmetric", 1, 3, 3, 3, -1, 1),
    Sketcher.Constraint("Diameter", 0, Q("0.125 in")),
    Sketcher.Constraint("DistanceX", 0, 3, -1, 1, Q("23.797679 mm")),
    Sketcher.Constraint("DistanceY", 1, 3, -1, 1, Q("23.797679 mm")),
    Sketcher.Constraint("DistanceY", 0, 3, 2, 3, Q("24.246692 mm")),
    Sketcher.Constraint("DistanceX", 1, 3, 3, 3, Q("24.246692 mm")),
])
pad4 = body2.newObject("PartDesign::Pad", "Pad003")
pad4.Profile = sketch4
pad4.Length = Q("1.33 in")
pad4.Reversed = True
doc.recompute()

fillet2 = body2.newObject("PartDesign::Fillet", "Fillet001")
fillet2.Base = (pad4, edges_at(pad4, [
    (-25.385, 13.97, -12.123),
    (-13.711, 13.97, -23.798),
    (22.21, 13.97, 12.123),
    (10.536, 13.97, 23.798),
]))
fillet2.Radius = Q("0.15 in")
body3 = doc.addObject("PartDesign::Body", "Body002")

# Sketch on XZ plane
sketch5 = body3.newObject("Sketcher::SketchObject", "Sketch004")
sketch5.AttachmentSupport = (doc.getObject("XZ_Plane002"), [""])
sketch5.MapMode = "FlatFace"
sketch5.AttachmentOffset = App.Placement(App.Vector(0, 0, -1.88 * 25.4), App.Rotation())
sketch5.addGeometry([
    Part.LineSegment(App.Vector(-17.096665, 41.275, 0), App.Vector(17.096665, 41.275, 0)),  # 0
    Part.LineSegment(App.Vector(17.096665, 41.275, 0), App.Vector(41.275, 17.096665, 0)),  # 1
    Part.LineSegment(App.Vector(41.275, 17.096665, 0), App.Vector(41.275, -17.096665, 0)),  # 2
    Part.LineSegment(App.Vector(41.275, -17.096665, 0), App.Vector(17.096665, -41.275, 0)),  # 3
    Part.LineSegment(App.Vector(17.096665, -41.275, 0), App.Vector(-17.096665, -41.275, 0)),  # 4
    Part.LineSegment(App.Vector(-17.096665, -41.275, 0), App.Vector(-41.275, -17.096665, 0)),  # 5
    Part.LineSegment(App.Vector(-41.275, -17.096665, 0), App.Vector(-41.275, 17.096665, 0)),  # 6
    Part.LineSegment(App.Vector(-41.275, 17.096665, 0), App.Vector(-17.096665, 41.275, 0)),  # 7
    Part.LineSegment(App.Vector(-28.73682, 17.062487, 0), App.Vector(-17.062487, 28.73682, 0)),  # 8
    Part.ArcOfCircle(Part.Circle(App.Vector(-18.858538, 30.532871, 0), App.Vector(0, 0, 1), 2.54), math.radians(-45), math.radians(135)),  # 9
    Part.LineSegment(App.Vector(-20.654589, 32.328922, 0), App.Vector(-32.328922, 20.654589, 0)),  # 10
    Part.ArcOfCircle(Part.Circle(App.Vector(-30.532871, 18.858538, 0), App.Vector(0, 0, 1), 2.54), math.radians(135), math.radians(315)),  # 11
    Part.LineSegment(App.Vector(8.255, 37.465, 0), App.Vector(-8.255, 37.465, 0)),  # 12
    Part.ArcOfCircle(Part.Circle(App.Vector(-8.255, 34.925, 0), App.Vector(0, 0, 1), 2.54), math.radians(90), math.radians(270)),  # 13
    Part.LineSegment(App.Vector(-8.255, 32.385, 0), App.Vector(8.255, 32.385, 0)),  # 14
    Part.ArcOfCircle(Part.Circle(App.Vector(8.255, 34.925, 0), App.Vector(0, 0, 1), 2.54), math.radians(-90), math.radians(90)),  # 15
    Part.Circle(App.Vector(12.123346, 23.797679, 0), App.Vector(0, 0, 1), 1.8415),  # 16
    Part.LineSegment(App.Vector(32.328922, 20.654589, 0), App.Vector(20.654589, 32.328922, 0)),  # 17
    Part.ArcOfCircle(Part.Circle(App.Vector(18.858538, 30.532871, 0), App.Vector(0, 0, 1), 2.54), math.radians(45), math.radians(225)),  # 18
    Part.LineSegment(App.Vector(17.062487, 28.73682, 0), App.Vector(28.73682, 17.062487, 0)),  # 19
    Part.ArcOfCircle(Part.Circle(App.Vector(30.532871, 18.858538, 0), App.Vector(0, 0, 1), 2.54), math.radians(-135), math.radians(45)),  # 20
    Part.Circle(App.Vector(23.797679, 12.123346, 0), App.Vector(0, 0, 1), 1.8415),  # 21
    Part.LineSegment(App.Vector(-37.465, 8.255, 0), App.Vector(-37.465, -8.255, 0)),  # 22
    Part.ArcOfCircle(Part.Circle(App.Vector(-34.925, -8.255, 0), App.Vector(0, 0, 1), 2.54), math.radians(180), math.radians(360)),  # 23
    Part.LineSegment(App.Vector(-32.385, -8.255, 0), App.Vector(-32.385, 8.255, 0)),  # 24
    Part.ArcOfCircle(Part.Circle(App.Vector(-34.925, 8.255, 0), App.Vector(0, 0, 1), 2.54), math.radians(0), math.radians(180)),  # 25
    Part.Circle(App.Vector(-23.797679, -12.123346, 0), App.Vector(0, 0, 1), 1.8415),  # 26
    Part.LineSegment(App.Vector(-17.062487, -28.73682, 0), App.Vector(-28.73682, -17.062487, 0)),  # 27
    Part.ArcOfCircle(Part.Circle(App.Vector(-30.532871, -18.858538, 0), App.Vector(0, 0, 1), 2.54), math.radians(45), math.radians(225)),  # 28
    Part.LineSegment(App.Vector(-32.328922, -20.654589, 0), App.Vector(-20.654589, -32.328922, 0)),  # 29
    Part.ArcOfCircle(Part.Circle(App.Vector(-18.858538, -30.532871, 0), App.Vector(0, 0, 1), 2.54), math.radians(-135), math.radians(45)),  # 30
    Part.Circle(App.Vector(-12.123346, -23.797679, 0), App.Vector(0, 0, 1), 1.8415),  # 31
    Part.LineSegment(App.Vector(37.465, -8.255, 0), App.Vector(37.465, 8.255, 0)),  # 32
    Part.ArcOfCircle(Part.Circle(App.Vector(34.925, 8.255, 0), App.Vector(0, 0, 1), 2.54), math.radians(0), math.radians(180)),  # 33
    Part.LineSegment(App.Vector(32.385, 8.255, 0), App.Vector(32.385, -8.255, 0)),  # 34
    Part.ArcOfCircle(Part.Circle(App.Vector(34.925, -8.255, 0), App.Vector(0, 0, 1), 2.54), math.radians(180), math.radians(360)),  # 35
    Part.LineSegment(App.Vector(8.255, -32.385, 0), App.Vector(-8.255, -32.385, 0)),  # 36
    Part.ArcOfCircle(Part.Circle(App.Vector(-8.255, -34.925, 0), App.Vector(0, 0, 1), 2.54), math.radians(90), math.radians(270)),  # 37
    Part.LineSegment(App.Vector(-8.255, -37.465, 0), App.Vector(8.255, -37.465, 0)),  # 38
    Part.ArcOfCircle(Part.Circle(App.Vector(8.255, -34.925, 0), App.Vector(0, 0, 1), 2.54), math.radians(-90), math.radians(90)),  # 39
    Part.LineSegment(App.Vector(28.73682, -17.062487, 0), App.Vector(17.062487, -28.73682, 0)),  # 40
    Part.ArcOfCircle(Part.Circle(App.Vector(18.858538, -30.532871, 0), App.Vector(0, 0, 1), 2.54), math.radians(135), math.radians(315)),  # 41
    Part.LineSegment(App.Vector(20.654589, -32.328922, 0), App.Vector(32.328922, -20.654589, 0)),  # 42
    Part.ArcOfCircle(Part.Circle(App.Vector(30.532871, -18.858538, 0), App.Vector(0, 0, 1), 2.54), math.radians(-45), math.radians(135)),  # 43
], False)
sketch5.addConstraint([
    Sketcher.Constraint("Coincident", 0, 2, 1, 1),
    Sketcher.Constraint("Coincident", 1, 2, 2, 1),
    Sketcher.Constraint("Coincident", 2, 2, 3, 1),
    Sketcher.Constraint("Coincident", 3, 2, 4, 1),
    Sketcher.Constraint("Coincident", 4, 2, 5, 1),
    Sketcher.Constraint("Coincident", 5, 2, 6, 1),
    Sketcher.Constraint("Coincident", 6, 2, 7, 1),
    Sketcher.Constraint("Coincident", 7, 2, 0, 1),
    Sketcher.Constraint("Tangent", 8, 2, 9, 1),
    Sketcher.Constraint("Tangent", 9, 2, 10, 1),
    Sketcher.Constraint("Tangent", 10, 2, 11, 1),
    Sketcher.Constraint("Tangent", 11, 2, 8, 1),
    Sketcher.Constraint("Tangent", 12, 2, 13, 1),
    Sketcher.Constraint("Tangent", 13, 2, 14, 1),
    Sketcher.Constraint("Tangent", 14, 2, 15, 1),
    Sketcher.Constraint("Tangent", 15, 2, 12, 1),
    Sketcher.Constraint("Tangent", 17, 2, 18, 1),
    Sketcher.Constraint("Tangent", 18, 2, 19, 1),
    Sketcher.Constraint("Tangent", 19, 2, 20, 1),
    Sketcher.Constraint("Tangent", 20, 2, 17, 1),
    Sketcher.Constraint("Tangent", 22, 2, 23, 1),
    Sketcher.Constraint("Tangent", 23, 2, 24, 1),
    Sketcher.Constraint("Tangent", 24, 2, 25, 1),
    Sketcher.Constraint("Tangent", 25, 2, 22, 1),
    Sketcher.Constraint("Tangent", 27, 2, 28, 1),
    Sketcher.Constraint("Tangent", 28, 2, 29, 1),
    Sketcher.Constraint("Tangent", 29, 2, 30, 1),
    Sketcher.Constraint("Tangent", 30, 2, 27, 1),
    Sketcher.Constraint("Tangent", 32, 2, 33, 1),
    Sketcher.Constraint("Tangent", 33, 2, 34, 1),
    Sketcher.Constraint("Tangent", 34, 2, 35, 1),
    Sketcher.Constraint("Tangent", 35, 2, 32, 1),
    Sketcher.Constraint("Tangent", 36, 2, 37, 1),
    Sketcher.Constraint("Tangent", 37, 2, 38, 1),
    Sketcher.Constraint("Tangent", 38, 2, 39, 1),
    Sketcher.Constraint("Tangent", 39, 2, 36, 1),
    Sketcher.Constraint("Tangent", 40, 2, 41, 1),
    Sketcher.Constraint("Tangent", 41, 2, 42, 1),
    Sketcher.Constraint("Tangent", 42, 2, 43, 1),
    Sketcher.Constraint("Tangent", 43, 2, 40, 1),
    Sketcher.Constraint("Horizontal", 0),
    Sketcher.Constraint("Vertical", 2),
    Sketcher.Constraint("Horizontal", 4),
    Sketcher.Constraint("Vertical", 6),
    Sketcher.Constraint("Horizontal", 12),
    Sketcher.Constraint("Horizontal", 14),
    Sketcher.Constraint("Vertical", 22),
    Sketcher.Constraint("Vertical", 24),
    Sketcher.Constraint("Vertical", 32),
    Sketcher.Constraint("Vertical", 34),
    Sketcher.Constraint("Horizontal", 36),
    Sketcher.Constraint("Horizontal", 38),
    Sketcher.Constraint("Equal", 9, 11),
    Sketcher.Constraint("Equal", 11, 13),
    Sketcher.Constraint("Equal", 15, 18),
    Sketcher.Constraint("Equal", 18, 20),
    Sketcher.Constraint("Equal", 16, 21),
    Sketcher.Constraint("Equal", 20, 23),
    Sketcher.Constraint("Equal", 21, 26),
    Sketcher.Constraint("Equal", 25, 28),
    Sketcher.Constraint("Equal", 28, 30),
    Sketcher.Constraint("Equal", 26, 31),
    Sketcher.Constraint("Equal", 30, 33),
    Sketcher.Constraint("Equal", 35, 37),
    Sketcher.Constraint("Equal", 39, 41),
    Sketcher.Constraint("Equal", 41, 43),
    Sketcher.Constraint("Symmetric", 21, 3, 26, 3, -1, 1),
    Sketcher.Constraint("Symmetric", 20, 3, 28, 3, -1, 1),
    Sketcher.Constraint("Symmetric", 18, 3, 30, 3, -1, 1),
    Sketcher.Constraint("Symmetric", 16, 3, 31, 3, -1, 1),
    Sketcher.Constraint("Symmetric", 23, 3, 33, 3, -1, 1),
    Sketcher.Constraint("Symmetric", 15, 3, 37, 3, -1, 1),
    Sketcher.Constraint("Symmetric", 9, 3, 41, 3, -1, 1),
    Sketcher.Constraint("Symmetric", 11, 3, 43, 3, -1, 1),
    Sketcher.Constraint("Symmetric", 0, 2, 4, 2, -1, 1),
    Sketcher.Constraint("Symmetric", 1, 2, 5, 2, -1, 1),
    Sketcher.Constraint("Symmetric", 9, 3, 18, 3, -2),
    Sketcher.Constraint("Symmetric", 11, 3, 20, 3, -2),
    Sketcher.Constraint("Perpendicular", 1, 3),
    Sketcher.Constraint("Perpendicular", 5, 7),
    Sketcher.Constraint("Parallel", 7, 8),
    Sketcher.Constraint("Perpendicular", 10, 17),
    Sketcher.Constraint("Horizontal", 25, 3, 33, 3),
    Sketcher.Constraint("Horizontal", 23, 3, 35, 3),
    Sketcher.Constraint("Horizontal", 2, 2, 5, 2),
    Sketcher.Constraint("Horizontal", 1, 2, 6, 2),
    Sketcher.Constraint("Vertical", 13, 3, 37, 3),
    Sketcher.Constraint("Vertical", 15, 3, 39, 3),
    Sketcher.Constraint("Equal", 4, 2),
    Sketcher.Constraint("Equal", 38, 22),
    Sketcher.Constraint("Radius", 9, Q("0.1 in")),
    Sketcher.Constraint("Diameter", 16, Q("0.145 in")),
    Sketcher.Constraint("DistanceX", 12, 2, 12, 1, Q("0.65 in")),
    Sketcher.Constraint("DistanceY", 23, 3, 13, 3, Q("1.7 in")),
    Sketcher.Constraint("DistanceX", 23, 3, 15, 3, Q("1.7 in")),
    Sketcher.Constraint("Distance", 8, Q("0.65 in")),
    Sketcher.Constraint("DistanceY", 15, 3, 0, 2, Q("0.25 in")),
    Sketcher.Constraint("DistanceX", 16, 3, 0, 2, Q("0.1958 in")),
    Sketcher.Constraint("DistanceY", 21, 3, 1, 2, Q("0.1958 in")),
    Sketcher.Constraint("DistanceX", 0, 1, 0, 2, Q("34.19333 mm")),
    Sketcher.Constraint("DistanceY", -1, 1, 9, 3, Q("30.532871 mm")),
    Sketcher.Constraint("DistanceX", 11, 3, -1, 1, Q("30.532871 mm")),
    Sketcher.Constraint("DistanceY", -1, 1, 16, 3, Q("23.797679 mm")),
    Sketcher.Constraint("DistanceX", -1, 1, 21, 3, Q("23.797679 mm")),
])
pad5 = body3.newObject("PartDesign::Pad", "Pad004")
pad5.Profile = sketch5
pad5.Length = Q("0.1 in")

doc.recompute()
